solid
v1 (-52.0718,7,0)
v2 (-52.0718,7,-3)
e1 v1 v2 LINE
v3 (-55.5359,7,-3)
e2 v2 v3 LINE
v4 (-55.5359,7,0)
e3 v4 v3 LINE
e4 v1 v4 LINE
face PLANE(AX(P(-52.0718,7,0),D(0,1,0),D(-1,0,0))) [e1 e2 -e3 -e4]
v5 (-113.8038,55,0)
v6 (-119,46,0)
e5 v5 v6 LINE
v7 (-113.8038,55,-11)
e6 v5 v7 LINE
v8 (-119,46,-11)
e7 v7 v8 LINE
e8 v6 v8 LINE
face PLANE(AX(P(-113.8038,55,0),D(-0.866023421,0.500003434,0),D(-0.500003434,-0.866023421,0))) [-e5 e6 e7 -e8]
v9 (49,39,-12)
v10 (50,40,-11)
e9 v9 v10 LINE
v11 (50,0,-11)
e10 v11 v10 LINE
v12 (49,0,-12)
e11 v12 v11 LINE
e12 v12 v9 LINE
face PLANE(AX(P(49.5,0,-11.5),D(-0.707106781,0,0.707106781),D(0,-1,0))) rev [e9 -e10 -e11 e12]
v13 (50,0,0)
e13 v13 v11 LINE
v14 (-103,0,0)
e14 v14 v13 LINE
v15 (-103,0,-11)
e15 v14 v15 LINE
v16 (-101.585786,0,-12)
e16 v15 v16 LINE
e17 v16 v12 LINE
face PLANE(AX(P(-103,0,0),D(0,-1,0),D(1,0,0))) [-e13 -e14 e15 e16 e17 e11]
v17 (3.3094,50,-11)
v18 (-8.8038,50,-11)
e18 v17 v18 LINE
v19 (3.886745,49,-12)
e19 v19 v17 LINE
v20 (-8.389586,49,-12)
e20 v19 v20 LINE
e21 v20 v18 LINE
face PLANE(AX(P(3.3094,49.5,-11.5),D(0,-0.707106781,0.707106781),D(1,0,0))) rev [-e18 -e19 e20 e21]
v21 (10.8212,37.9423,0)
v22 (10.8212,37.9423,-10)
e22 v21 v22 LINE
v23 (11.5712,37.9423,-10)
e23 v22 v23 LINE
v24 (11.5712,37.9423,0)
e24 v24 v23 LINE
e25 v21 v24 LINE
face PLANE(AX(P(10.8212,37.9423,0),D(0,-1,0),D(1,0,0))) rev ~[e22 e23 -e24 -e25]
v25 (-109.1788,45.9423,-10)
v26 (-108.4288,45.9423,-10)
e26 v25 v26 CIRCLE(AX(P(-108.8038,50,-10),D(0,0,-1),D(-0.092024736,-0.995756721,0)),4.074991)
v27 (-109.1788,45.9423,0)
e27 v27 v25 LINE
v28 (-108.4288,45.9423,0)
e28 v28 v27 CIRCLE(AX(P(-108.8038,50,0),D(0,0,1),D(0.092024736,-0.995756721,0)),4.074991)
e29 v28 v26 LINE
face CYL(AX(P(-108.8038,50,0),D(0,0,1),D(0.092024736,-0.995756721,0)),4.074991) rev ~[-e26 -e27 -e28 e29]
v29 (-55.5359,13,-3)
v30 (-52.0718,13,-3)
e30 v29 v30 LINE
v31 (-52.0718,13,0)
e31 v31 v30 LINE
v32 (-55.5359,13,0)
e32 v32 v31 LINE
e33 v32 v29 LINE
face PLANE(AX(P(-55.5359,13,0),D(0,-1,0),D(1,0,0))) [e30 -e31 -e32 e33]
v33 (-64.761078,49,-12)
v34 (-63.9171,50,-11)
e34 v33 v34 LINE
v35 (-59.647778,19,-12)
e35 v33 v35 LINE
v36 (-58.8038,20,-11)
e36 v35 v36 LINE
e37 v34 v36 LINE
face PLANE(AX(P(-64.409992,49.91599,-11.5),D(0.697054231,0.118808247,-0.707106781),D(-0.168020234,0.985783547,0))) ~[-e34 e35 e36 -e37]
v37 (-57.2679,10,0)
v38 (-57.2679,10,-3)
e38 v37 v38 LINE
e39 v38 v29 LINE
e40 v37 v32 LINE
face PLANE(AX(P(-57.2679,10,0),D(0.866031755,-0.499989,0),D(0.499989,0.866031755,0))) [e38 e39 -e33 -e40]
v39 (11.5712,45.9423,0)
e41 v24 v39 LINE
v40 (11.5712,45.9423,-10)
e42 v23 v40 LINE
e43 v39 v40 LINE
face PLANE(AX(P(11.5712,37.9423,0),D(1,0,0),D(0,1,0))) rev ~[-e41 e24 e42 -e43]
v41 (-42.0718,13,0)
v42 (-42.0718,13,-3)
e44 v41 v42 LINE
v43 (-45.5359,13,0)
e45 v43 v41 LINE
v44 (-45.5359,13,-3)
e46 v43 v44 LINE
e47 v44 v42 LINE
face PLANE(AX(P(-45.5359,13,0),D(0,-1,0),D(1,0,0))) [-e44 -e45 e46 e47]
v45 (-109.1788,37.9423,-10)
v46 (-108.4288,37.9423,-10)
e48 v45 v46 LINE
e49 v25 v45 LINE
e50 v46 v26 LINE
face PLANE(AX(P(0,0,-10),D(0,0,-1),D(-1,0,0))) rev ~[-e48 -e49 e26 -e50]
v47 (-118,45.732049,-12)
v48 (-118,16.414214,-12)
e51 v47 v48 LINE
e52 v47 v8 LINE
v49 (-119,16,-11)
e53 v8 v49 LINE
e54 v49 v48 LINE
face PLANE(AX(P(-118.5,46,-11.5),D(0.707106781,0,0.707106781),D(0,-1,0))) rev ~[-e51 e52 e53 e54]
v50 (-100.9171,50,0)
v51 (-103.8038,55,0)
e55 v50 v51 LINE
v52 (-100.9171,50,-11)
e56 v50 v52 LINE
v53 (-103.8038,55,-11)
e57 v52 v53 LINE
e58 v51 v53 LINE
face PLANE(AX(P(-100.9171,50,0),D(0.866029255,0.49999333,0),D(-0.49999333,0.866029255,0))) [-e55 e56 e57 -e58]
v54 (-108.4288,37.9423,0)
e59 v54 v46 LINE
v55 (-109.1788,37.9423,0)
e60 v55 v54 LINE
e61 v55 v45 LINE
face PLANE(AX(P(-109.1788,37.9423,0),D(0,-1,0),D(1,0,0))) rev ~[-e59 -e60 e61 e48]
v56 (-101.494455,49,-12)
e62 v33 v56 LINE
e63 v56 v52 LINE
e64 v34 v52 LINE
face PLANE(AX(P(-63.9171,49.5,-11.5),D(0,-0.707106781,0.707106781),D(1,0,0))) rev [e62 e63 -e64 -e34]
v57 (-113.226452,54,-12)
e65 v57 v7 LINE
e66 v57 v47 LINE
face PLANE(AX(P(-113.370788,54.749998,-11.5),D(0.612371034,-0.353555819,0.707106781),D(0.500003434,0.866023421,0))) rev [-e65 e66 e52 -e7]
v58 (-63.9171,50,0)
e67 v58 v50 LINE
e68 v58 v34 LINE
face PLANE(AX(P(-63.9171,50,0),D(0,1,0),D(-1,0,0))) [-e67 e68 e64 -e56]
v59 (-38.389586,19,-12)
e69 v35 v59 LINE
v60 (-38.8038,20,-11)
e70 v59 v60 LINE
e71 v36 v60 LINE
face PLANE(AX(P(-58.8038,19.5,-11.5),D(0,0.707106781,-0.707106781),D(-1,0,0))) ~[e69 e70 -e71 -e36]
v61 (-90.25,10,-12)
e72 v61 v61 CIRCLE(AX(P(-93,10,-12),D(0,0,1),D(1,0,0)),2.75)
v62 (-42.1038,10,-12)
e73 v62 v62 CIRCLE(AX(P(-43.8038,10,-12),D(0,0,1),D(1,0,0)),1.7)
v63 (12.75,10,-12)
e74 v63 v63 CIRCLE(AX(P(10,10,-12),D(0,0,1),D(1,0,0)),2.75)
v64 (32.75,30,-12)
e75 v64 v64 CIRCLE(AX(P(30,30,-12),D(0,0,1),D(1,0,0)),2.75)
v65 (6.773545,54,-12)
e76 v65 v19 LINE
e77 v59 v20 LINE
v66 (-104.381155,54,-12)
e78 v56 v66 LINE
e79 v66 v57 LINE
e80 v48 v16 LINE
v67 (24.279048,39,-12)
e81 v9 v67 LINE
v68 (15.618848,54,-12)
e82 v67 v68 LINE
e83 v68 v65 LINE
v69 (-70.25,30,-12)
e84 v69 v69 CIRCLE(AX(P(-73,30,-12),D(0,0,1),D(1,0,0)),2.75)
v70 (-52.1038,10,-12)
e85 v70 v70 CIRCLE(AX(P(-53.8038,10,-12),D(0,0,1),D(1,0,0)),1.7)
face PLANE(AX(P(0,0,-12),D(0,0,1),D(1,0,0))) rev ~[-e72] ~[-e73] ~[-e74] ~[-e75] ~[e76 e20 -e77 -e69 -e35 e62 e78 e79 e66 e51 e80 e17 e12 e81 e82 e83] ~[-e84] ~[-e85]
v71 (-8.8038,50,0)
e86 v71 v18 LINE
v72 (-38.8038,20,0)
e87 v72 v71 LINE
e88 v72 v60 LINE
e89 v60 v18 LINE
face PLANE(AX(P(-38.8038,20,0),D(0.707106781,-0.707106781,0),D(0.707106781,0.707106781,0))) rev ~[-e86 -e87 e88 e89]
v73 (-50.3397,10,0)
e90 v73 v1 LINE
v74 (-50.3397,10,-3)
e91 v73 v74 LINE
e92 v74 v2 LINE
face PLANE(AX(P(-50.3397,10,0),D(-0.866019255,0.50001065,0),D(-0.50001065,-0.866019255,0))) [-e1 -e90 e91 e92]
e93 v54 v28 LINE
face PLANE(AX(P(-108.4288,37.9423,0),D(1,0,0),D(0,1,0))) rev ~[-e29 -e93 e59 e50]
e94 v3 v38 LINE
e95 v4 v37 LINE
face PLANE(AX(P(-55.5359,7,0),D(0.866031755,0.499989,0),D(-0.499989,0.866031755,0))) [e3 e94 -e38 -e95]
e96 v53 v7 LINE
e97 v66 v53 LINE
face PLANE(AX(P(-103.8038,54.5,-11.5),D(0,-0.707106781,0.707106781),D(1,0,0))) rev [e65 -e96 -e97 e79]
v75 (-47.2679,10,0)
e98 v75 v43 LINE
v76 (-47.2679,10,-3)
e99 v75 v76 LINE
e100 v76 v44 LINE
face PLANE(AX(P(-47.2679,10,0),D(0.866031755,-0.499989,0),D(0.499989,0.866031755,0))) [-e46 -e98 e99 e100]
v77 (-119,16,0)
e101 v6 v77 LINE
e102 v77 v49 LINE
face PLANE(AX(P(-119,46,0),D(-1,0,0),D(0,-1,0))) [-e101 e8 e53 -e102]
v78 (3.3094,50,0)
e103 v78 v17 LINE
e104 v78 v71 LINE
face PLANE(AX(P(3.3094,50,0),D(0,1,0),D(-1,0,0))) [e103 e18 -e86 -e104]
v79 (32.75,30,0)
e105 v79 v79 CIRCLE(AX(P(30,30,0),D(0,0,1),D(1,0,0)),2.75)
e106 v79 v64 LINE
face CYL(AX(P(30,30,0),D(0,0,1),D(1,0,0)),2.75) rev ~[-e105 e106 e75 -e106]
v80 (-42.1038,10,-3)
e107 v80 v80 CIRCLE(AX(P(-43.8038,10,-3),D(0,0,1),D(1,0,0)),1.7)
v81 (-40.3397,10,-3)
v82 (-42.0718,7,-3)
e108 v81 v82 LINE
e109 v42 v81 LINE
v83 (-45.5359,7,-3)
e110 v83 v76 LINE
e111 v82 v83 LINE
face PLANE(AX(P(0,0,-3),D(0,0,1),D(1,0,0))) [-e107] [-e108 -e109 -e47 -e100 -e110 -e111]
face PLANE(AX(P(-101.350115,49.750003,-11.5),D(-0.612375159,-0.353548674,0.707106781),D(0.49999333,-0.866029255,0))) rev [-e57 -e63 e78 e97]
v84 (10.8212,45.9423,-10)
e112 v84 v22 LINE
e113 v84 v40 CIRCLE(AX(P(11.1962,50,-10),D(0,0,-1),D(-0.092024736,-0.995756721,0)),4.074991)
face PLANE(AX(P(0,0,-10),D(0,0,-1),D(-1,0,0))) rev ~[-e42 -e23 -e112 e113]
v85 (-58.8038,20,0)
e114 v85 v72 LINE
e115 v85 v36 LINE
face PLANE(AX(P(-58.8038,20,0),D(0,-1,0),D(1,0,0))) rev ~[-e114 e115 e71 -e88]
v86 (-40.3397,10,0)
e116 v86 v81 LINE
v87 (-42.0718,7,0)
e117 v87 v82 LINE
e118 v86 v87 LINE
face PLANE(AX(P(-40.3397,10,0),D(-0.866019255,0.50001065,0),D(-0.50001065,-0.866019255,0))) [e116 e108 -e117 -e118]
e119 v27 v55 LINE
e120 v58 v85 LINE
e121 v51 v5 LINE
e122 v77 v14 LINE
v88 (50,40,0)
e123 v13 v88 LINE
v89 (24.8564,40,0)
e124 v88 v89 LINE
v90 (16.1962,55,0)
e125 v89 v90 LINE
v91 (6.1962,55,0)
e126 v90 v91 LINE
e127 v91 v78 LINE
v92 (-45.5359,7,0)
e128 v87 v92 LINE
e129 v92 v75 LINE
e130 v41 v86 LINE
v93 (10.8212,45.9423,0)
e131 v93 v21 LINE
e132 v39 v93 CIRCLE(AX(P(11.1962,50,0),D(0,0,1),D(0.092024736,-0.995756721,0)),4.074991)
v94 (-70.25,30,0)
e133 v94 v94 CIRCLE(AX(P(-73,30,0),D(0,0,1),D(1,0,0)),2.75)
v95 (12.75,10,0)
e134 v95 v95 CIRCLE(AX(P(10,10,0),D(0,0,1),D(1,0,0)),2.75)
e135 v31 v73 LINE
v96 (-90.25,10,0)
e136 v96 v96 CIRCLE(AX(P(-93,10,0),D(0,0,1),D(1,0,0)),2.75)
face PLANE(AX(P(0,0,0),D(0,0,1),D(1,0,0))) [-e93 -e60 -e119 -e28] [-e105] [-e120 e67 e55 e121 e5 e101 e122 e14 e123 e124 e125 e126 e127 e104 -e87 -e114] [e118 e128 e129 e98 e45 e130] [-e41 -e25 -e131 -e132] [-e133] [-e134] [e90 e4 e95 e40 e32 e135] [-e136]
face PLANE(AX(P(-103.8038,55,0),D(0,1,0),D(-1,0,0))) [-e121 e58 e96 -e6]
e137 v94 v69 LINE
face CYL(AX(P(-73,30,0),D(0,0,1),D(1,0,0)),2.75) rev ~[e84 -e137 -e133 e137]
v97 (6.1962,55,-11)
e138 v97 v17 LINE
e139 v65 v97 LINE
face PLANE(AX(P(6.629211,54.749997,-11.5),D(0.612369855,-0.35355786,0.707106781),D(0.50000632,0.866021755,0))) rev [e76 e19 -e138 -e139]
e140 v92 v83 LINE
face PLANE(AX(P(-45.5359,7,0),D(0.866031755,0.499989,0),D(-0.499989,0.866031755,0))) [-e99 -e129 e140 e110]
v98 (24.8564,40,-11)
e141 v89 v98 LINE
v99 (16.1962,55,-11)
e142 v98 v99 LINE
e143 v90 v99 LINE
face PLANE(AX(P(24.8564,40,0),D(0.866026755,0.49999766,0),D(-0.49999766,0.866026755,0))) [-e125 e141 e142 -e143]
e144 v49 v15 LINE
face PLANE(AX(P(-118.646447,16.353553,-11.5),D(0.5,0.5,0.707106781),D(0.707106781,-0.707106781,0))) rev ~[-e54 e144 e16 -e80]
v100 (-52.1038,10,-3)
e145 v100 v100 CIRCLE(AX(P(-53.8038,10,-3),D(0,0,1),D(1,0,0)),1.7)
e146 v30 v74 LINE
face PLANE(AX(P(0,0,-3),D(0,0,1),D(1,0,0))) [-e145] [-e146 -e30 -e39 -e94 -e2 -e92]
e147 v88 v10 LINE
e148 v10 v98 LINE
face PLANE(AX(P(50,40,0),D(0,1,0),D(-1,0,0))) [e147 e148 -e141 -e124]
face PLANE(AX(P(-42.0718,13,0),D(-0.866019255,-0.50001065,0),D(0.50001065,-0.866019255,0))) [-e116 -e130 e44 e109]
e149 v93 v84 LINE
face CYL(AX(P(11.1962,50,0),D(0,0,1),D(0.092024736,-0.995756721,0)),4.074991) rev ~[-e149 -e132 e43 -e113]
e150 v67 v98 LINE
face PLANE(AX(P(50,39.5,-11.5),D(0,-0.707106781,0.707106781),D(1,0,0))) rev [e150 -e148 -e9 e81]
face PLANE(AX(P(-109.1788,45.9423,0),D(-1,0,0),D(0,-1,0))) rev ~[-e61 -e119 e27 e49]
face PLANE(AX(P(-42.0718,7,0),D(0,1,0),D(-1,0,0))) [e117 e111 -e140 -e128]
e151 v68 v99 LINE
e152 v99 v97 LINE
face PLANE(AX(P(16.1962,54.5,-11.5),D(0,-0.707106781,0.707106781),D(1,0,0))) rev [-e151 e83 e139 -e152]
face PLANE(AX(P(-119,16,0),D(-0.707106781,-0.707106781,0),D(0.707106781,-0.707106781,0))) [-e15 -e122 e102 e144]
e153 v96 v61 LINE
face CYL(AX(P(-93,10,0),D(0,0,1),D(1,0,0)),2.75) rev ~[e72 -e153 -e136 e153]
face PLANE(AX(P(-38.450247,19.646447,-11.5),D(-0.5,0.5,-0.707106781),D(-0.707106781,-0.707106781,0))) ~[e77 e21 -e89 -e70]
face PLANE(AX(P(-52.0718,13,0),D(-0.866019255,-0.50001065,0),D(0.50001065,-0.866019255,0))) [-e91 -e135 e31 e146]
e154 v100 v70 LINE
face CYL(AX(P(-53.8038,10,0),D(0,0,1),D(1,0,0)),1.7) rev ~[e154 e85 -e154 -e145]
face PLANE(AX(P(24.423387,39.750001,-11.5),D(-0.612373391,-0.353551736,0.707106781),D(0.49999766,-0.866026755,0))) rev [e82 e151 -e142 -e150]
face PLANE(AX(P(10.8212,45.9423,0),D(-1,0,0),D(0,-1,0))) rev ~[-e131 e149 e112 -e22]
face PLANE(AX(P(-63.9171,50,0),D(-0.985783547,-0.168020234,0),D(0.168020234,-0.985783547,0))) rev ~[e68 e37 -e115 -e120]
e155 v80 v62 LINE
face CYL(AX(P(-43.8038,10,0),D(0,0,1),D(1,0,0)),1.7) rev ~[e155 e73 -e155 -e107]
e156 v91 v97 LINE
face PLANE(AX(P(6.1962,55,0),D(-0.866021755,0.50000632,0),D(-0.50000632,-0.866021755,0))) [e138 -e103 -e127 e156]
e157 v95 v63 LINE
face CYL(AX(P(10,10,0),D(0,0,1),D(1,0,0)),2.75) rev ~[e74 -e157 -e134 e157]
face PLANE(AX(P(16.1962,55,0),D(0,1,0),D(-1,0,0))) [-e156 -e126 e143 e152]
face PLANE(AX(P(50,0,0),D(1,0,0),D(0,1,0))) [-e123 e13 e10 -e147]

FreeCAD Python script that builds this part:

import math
import FreeCAD as App
import Part
import Sketcher

V = App.Vector
Q = App.Units.Quantity


def edges_at(feature, points):
    """Names of the edges that pass closest to the given points."""
    edges = feature.Shape.Edges
    near = lambda p: min(range(len(edges)), key=lambda i: edges[i].distToShape(Part.Vertex(*p))[0])
    return sorted({f"Edge{near(p) + 1}" for p in points})


def add_polygon(sketch, points):
    """Adds a closed chain of lines whose ends are joined by coincident constraints."""
    first, n = sketch.GeometryCount, len(points)
    for a, b in zip(points, points[1:] + points[:1]):
        sketch.addGeometry(Part.LineSegment(App.Vector(*a, 0), App.Vector(*b, 0)), False)
    for i in range(n):
        sketch.addConstraint(Sketcher.Constraint("Coincident", first + i, 2, first + (i + 1) % n, 1))

doc = App.newDocument("Part")
params = doc.addObject("Spreadsheet::Sheet", "Params")
for row, (alias, value) in enumerate([
    ("sketch1_diameter", "5.5 mm"),
    ("sketch1_diameter2", "3.4 mm"),
    ("sketch1_width", "10 mm"),
    ("sketch1_width2", "20 mm"),
    ("sketch1_width3", "37 mm"),
    ("pad1_length", "12 mm"),
    ("sketch2_height", "8 mm"),
    ("sketch2_width", "0.75 mm"),
    ("pad2_length", "2 mm"),
    ("pocket1_length", "3 mm"),
    ("chamfer_size", "1 mm"),
], start=1):
    params.set(f"A{row}", alias)
    params.set(f"B{row}", "=" + value)
    params.setAlias(f"B{row}", alias)

body = doc.addObject("PartDesign::Body", "Body")

sketch1 = doc.addObject("Sketcher::SketchObject", "Sketch")
body.addObject(sketch1)
sketch1.AttachmentSupport = (doc.XY_Plane, [""])
sketch1.MapMode = "FlatFace"
add_polygon(sketch1, [(-119, 16), (-103, 0), (50, 0), (50, 40), (24.9, 40), (16.2, 55), (6.2, 55), (3.3, 50), (-8.8, 50), (-38.8, 20), (-58.8, 20), (-63.9, 50), (-100.9, 50), (-103.8, 55), (-113.8, 55), (-119, 46)])
sketch1.addGeometry(Part.Circle(V(-93, 10, 0), V(0, 0, 1), 2.8), False)
sketch1.addGeometry(Part.Circle(V(-53.8, 10, 0), V(0, 0, 1), 1.7), False)
sketch1.addGeometry(Part.Circle(V(-43.8, 10, 0), V(0, 0, 1), 1.7), False)
sketch1.addGeometry(Part.Circle(V(10, 10, 0), V(0, 0, 1), 2.8), False)
sketch1.addGeometry(Part.Circle(V(-73, 30, 0), V(0, 0, 1), 2.8), False)
sketch1.addGeometry(Part.ArcOfCircle(Part.Circle(V(-108.8, 50, 0), V(0, 0, 1), 4.1), math.radians(-85), math.radians(265)), False)
sketch1.addGeometry(Part.LineSegment(V(-108.4, 45.9, 0), V(-108.4, 37.9, 0)), False)
sketch1.addGeometry(Part.LineSegment(V(-108.4, 37.9, 0), V(-109.2, 37.9, 0)), False)
sketch1.addGeometry(Part.LineSegment(V(-109.2, 37.9, 0), V(-109.2, 45.9, 0)), False)
sketch1.addGeometry(Part.Circle(V(30, 30, 0), V(0, 0, 1), 2.8), False)
sketch1.addGeometry(Part.ArcOfCircle(Part.Circle(V(11.2, 50, 0), V(0, 0, 1), 4.1), math.radians(-85), math.radians(265)), False)
sketch1.addGeometry(Part.LineSegment(V(11.6, 45.9, 0), V(11.6, 37.9, 0)), False)
sketch1.addGeometry(Part.LineSegment(V(11.6, 37.9, 0), V(10.8, 37.9, 0)), False)
sketch1.addGeometry(Part.LineSegment(V(10.8, 37.9, 0), V(10.8, 45.9, 0)), False)
sketch1.addConstraint([
    Sketcher.Constraint("Coincident", 21, 1, 22, 1),
    Sketcher.Constraint("Coincident", 22, 2, 23, 1),
    Sketcher.Constraint("Coincident", 23, 2, 24, 1),
    Sketcher.Constraint("Coincident", 24, 2, 21, 2),
    Sketcher.Constraint("Coincident", 26, 1, 27, 1),
    Sketcher.Constraint("Coincident", 27, 2, 28, 1),
    Sketcher.Constraint("Coincident", 28, 2, 29, 1),
    Sketcher.Constraint("Coincident", 29, 2, 26, 2),
    Sketcher.Constraint("Horizontal", 1),
    Sketcher.Constraint("Vertical", 2),
    Sketcher.Constraint("Horizontal", 3),
    Sketcher.Constraint("Horizontal", 5),
    Sketcher.Constraint("Horizontal", 7),
    Sketcher.Constraint("Horizontal", 9),
    Sketcher.Constraint("Horizontal", 11),
    Sketcher.Constraint("Horizontal", 13),
    Sketcher.Constraint("Vertical", 15),
    Sketcher.Constraint("Vertical", 22),
    Sketcher.Constraint("Horizontal", 23),
    Sketcher.Constraint("Vertical", 24),
    Sketcher.Constraint("Vertical", 27),
    Sketcher.Constraint("Horizontal", 28),
    Sketcher.Constraint("Vertical", 29),
    Sketcher.Constraint("Equal", 17, 18),
    Sketcher.Constraint("Equal", 16, 19),
    Sketcher.Constraint("Equal", 19, 20),
    Sketcher.Constraint("Equal", 20, 25),
    Sketcher.Constraint("Equal", 21, 26),
    Sketcher.Constraint("PointOnObject", 0, 2, -1),
    Sketcher.Constraint("Perpendicular", 0, 8),
    Sketcher.Constraint("Parallel", 4, 12),
    Sketcher.Constraint("Parallel", 6, 14),
    Sketcher.Constraint("Horizontal", 16, 3, 17, 3),
    Sketcher.Constraint("Horizontal", 17, 3, 18, 3),
    Sketcher.Constraint("Horizontal", 18, 3, 19, 3),
    Sketcher.Constraint("Horizontal", 20, 3, 25, 3),
    Sketcher.Constraint("Horizontal", 21, 3, 26, 3),
    Sketcher.Constraint("Horizontal", 26, 3, 6, 2),
    Sketcher.Constraint("Horizontal", 7, 2, 10, 2),
    Sketcher.Constraint("Horizontal", 5, 2, 12, 2),
    Sketcher.Constraint("Horizontal", 21, 1, 24, 2),
    Sketcher.Constraint("Horizontal", 24, 2, 26, 1),
    Sketcher.Constraint("Horizontal", 23, 2, 27, 2),
    Sketcher.Constraint("Horizontal", 26, 1, 29, 2),
    Sketcher.Constraint("Equal", 5, 13),
    Sketcher.Constraint("Equal", 6, 12),
    Sketcher.Constraint("Diameter", 16, 5.5),
    Sketcher.Constraint("Diameter", 17, 3.4),
    Sketcher.Constraint("DistanceX", 5, 2, 5, 1, 10.0),
    Sketcher.Constraint("DistanceX", 9, 2, 9, 1, 20.0),
    Sketcher.Constraint("DistanceX", 11, 2, 11, 1, 37.0),
    Sketcher.Constraint("DistanceY", 15, 2, 15, 1, 30.0),
    Sketcher.Constraint("DistanceY", 22, 2, 22, 1, 8.0),
    Sketcher.Constraint("Angle", 0, Q("-45 deg")),
    Sketcher.Constraint("Angle", 4, Q("119.9998 deg")),
    Sketcher.Constraint("DistanceY", -1, 1, 16, 3, 10.0),
    Sketcher.Constraint("DistanceX", -1, 1, 19, 3, 10.0),
    Sketcher.Constraint("DistanceY", -1, 1, 20, 3, 30.0),
    Sketcher.Constraint("DistanceY", -1, 1, 21, 3, 50.0),
    Sketcher.Constraint("DistanceX", -1, 1, 25, 3, 30.0),
    Sketcher.Constraint("DistanceX", -1, 1, 1, 2, 50.0),
    Sketcher.Constraint("DistanceY", -1, 1, 8, 2, 20.0),
    Sketcher.Constraint("DistanceY", -1, 1, 15, 2, 16.0),
    Sketcher.Constraint("Radius", 21, 4.075),
    Sketcher.Constraint("DistanceX", 17, 3, 18, 3, 10.0),
    Sketcher.Constraint("DistanceX", 16, 3, 20, 3, 20.0),
    Sketcher.Constraint("DistanceX", 0, 2, 16, 3, 10.0),
    Sketcher.Constraint("DistanceY", 25, 3, 2, 2, 10.0),
    Sketcher.Constraint("DistanceX", 26, 3, 4, 2, 5.0),
    Sketcher.Constraint("DistanceY", 26, 3, 4, 2, 5.0),
    Sketcher.Constraint("DistanceX", 7, 2, 26, 3, 20.0),
    Sketcher.Constraint("DistanceX", 18, 3, 8, 2, 5.0),
    Sketcher.Constraint("DistanceX", 21, 3, 12, 2, 5.0),
    Sketcher.Constraint("DistanceX", 23, 2, 23, 1, 0.75),
    Sketcher.Constraint("DistanceX", 1, 1, 1, 2, 153.0),
    Sketcher.Constraint("DistanceX", 21, 3, 17, 3, 55.0),
])
sketch1.setExpression("Constraints[62]", "Params.sketch1_diameter")
sketch1.setExpression("Constraints[63]", "Params.sketch1_diameter2")
sketch1.setExpression("Constraints[64]", "Params.sketch1_width")
sketch1.setExpression("Constraints[65]", "Params.sketch1_width2")
sketch1.setExpression("Constraints[66]", "Params.sketch1_width3")
pad1 = doc.addObject("PartDesign::Pad", "Pad")
body.addObject(pad1)
pad1.Profile = sketch1
pad1.setExpression("Length", "Params.pad1_length")
pad1.Reversed = True

sketch2 = doc.addObject("Sketcher::SketchObject", "Sketch001")
body.addObject(sketch2)
sketch2.AttachmentSupport = (doc.XY_Plane, [""])
sketch2.MapMode = "FlatFace"
sketch2.AttachmentOffset = App.Placement(V(0, 0, -12), App.Rotation())
sketch2.addGeometry([
    Part.LineSegment(V(10.8, 37.9, 0), V(10.8, 45.9, 0)),
    Part.ArcOfCircle(Part.Circle(V(11.2, 50, 0), V(0, 0, 1), 4.1), math.radians(-85), math.radians(265)),
    Part.LineSegment(V(11.6, 45.9, 0), V(11.6, 37.9, 0)),
    Part.LineSegment(V(11.6, 37.9, 0), V(10.8, 37.9, 0)),
    Part.LineSegment(V(-109.2, 37.9, 0), V(-109.2, 45.9, 0)),
    Part.ArcOfCircle(Part.Circle(V(-108.8, 50, 0), V(0, 0, 1), 4.1), math.radians(-85), math.radians(265)),
    Part.LineSegment(V(-108.4, 45.9, 0), V(-108.4, 37.9, 0)),
    Part.LineSegment(V(-108.4, 37.9, 0), V(-109.2, 37.9, 0)),
], False)
sketch2.addConstraint([
    Sketcher.Constraint("Coincident", 0, 2, 1, 2),
    Sketcher.Constraint("Coincident", 1, 1, 2, 1),
    Sketcher.Constraint("Coincident", 2, 2, 3, 1),
    Sketcher.Constraint("Coincident", 3, 2, 0, 1),
    Sketcher.Constraint("Coincident", 4, 2, 5, 2),
    Sketcher.Constraint("Coincident", 5, 1, 6, 1),
    Sketcher.Constraint("Coincident", 6, 2, 7, 1),
    Sketcher.Constraint("Coincident", 7, 2, 4, 1),
    Sketcher.Constraint("Vertical", 0),
    Sketcher.Constraint("Vertical", 2),
    Sketcher.Constraint("Horizontal", 3),
    Sketcher.Constraint("Vertical", 4),
    Sketcher.Constraint("Vertical", 6),
    Sketcher.Constraint("Horizontal", 7),
    Sketcher.Constraint("Equal", 1, 5),
    Sketcher.Constraint("Horizontal", 1, 3, 5, 3),
    Sketcher.Constraint("Horizontal", 0, 2, 1, 1),
    Sketcher.Constraint("Horizontal", 1, 1, 4, 2),
    Sketcher.Constraint("Horizontal", 4, 2, 5, 1),
    Sketcher.Constraint("Horizontal", 3, 2, 6, 2),
    Sketcher.Constraint("DistanceY", 0, 1, 0, 2, 8.0),
    Sketcher.Constraint("DistanceY", -1, 1, 1, 3, 50.0),
    Sketcher.Constraint("Radius", 1, 4.075),
    Sketcher.Constraint("DistanceX", 5, 3, 1, 3, 120.0),
    Sketcher.Constraint("DistanceX", 3, 2, 3, 1, 0.75),
    Sketcher.Constraint("DistanceX", -1, 1, 1, 3, 11.1962),
])
sketch2.setExpression("Constraints[20]", "Params.sketch2_height")
sketch2.setExpression("Constraints[24]", "Params.sketch2_width")
pad2 = doc.addObject("PartDesign::Pad", "Pad001")
body.addObject(pad2)
pad2.Profile = sketch2
pad2.setExpression("Length", "Params.pad2_length")

sketch3 = doc.addObject("Sketcher::SketchObject", "Sketch002")
body.addObject(sketch3)
sketch3.AttachmentSupport = (doc.XY_Plane, [""])
sketch3.MapMode = "FlatFace"
add_polygon(sketch3, [(-52.1, 7), (-50.3, 10), (-52.1, 13), (-55.5, 13), (-57.3, 10), (-55.5, 7)])
add_polygon(sketch3, [(-40.3, 10), (-42.1, 13), (-45.5, 13), (-47.3, 10), (-45.5, 7), (-42.1, 7)])
sketch3.addConstraint([
    Sketcher.Constraint("Horizontal", 2),
    Sketcher.Constraint("Horizontal", 5),
    Sketcher.Constraint("Horizontal", 7),
    Sketcher.Constraint("Horizontal", 10),
    Sketcher.Constraint("Parallel", 0, 3),
    Sketcher.Constraint("Parallel", 1, 4),
    Sketcher.Constraint("Parallel", 4, 6),
    Sketcher.Constraint("Parallel", 3, 8),
    Sketcher.Constraint("Parallel", 6, 9),
    Sketcher.Constraint("Parallel", 8, 11),
    Sketcher.Constraint("Horizontal", 0, 2, 3, 2),
    Sketcher.Constraint("Horizontal", 2, 2, 6, 2),
    Sketcher.Constraint("Horizontal", 3, 2, 8, 2),
    Sketcher.Constraint("Horizontal", 5, 2, 9, 2),
    Sketcher.Constraint("Horizontal", 8, 2, 11, 2),
    Sketcher.Constraint("Vertical", 2, 2, 4, 2),
    Sketcher.Constraint("Vertical", 1, 2, 5, 2),
    Sketcher.Constraint("Equal", 5, 7),
    Sketcher.Constraint("DistanceY", 4, 2, 2, 2, 6.0),
    Sketcher.Constraint("Angle", 0, Q("59.9993 deg")),
    Sketcher.Constraint("DistanceY", -1, 1, 0, 2, 10.0),
    Sketcher.Constraint("DistanceX", 1, 2, 6, 2, 10.0),
    Sketcher.Constraint("DistanceX", 2, 2, 2, 1, 3.464),
    Sketcher.Constraint("DistanceX", 2, 2, -1, 1, 55.536),
])
pocket1 = doc.addObject("PartDesign::Pocket", "Pocket")
body.addObject(pocket1)
pocket1.Profile = sketch3
pocket1.setExpression("Length", "Params.pocket1_length")
doc.recompute()

chamfer = doc.addObject("PartDesign::Chamfer", "Chamfer")
body.addObject(chamfer)
chamfer.Base = (pocket1, edges_at(pocket1, [
    (37.428, 40, -12),
    (50, 20, -12),
    (20.526, 47.5, -12),
    (11.196, 55, -12),
    (4.753, 52.5, -12),
    (-2.747, 50, -12),
    (-23.804, 35, -12),
    (-48.804, 20, -12),
    (-61.361, 35, -12),
    (-82.417, 50, -12),
    (-102.361, 52.5, -12),
    (-108.804, 55, -12),
    (-116.402, 50.5, -12),
    (-119, 31, -12),
    (-111, 8, -12),
]))
chamfer.setExpression("Size", "Params.chamfer_size")

doc.recompute()
